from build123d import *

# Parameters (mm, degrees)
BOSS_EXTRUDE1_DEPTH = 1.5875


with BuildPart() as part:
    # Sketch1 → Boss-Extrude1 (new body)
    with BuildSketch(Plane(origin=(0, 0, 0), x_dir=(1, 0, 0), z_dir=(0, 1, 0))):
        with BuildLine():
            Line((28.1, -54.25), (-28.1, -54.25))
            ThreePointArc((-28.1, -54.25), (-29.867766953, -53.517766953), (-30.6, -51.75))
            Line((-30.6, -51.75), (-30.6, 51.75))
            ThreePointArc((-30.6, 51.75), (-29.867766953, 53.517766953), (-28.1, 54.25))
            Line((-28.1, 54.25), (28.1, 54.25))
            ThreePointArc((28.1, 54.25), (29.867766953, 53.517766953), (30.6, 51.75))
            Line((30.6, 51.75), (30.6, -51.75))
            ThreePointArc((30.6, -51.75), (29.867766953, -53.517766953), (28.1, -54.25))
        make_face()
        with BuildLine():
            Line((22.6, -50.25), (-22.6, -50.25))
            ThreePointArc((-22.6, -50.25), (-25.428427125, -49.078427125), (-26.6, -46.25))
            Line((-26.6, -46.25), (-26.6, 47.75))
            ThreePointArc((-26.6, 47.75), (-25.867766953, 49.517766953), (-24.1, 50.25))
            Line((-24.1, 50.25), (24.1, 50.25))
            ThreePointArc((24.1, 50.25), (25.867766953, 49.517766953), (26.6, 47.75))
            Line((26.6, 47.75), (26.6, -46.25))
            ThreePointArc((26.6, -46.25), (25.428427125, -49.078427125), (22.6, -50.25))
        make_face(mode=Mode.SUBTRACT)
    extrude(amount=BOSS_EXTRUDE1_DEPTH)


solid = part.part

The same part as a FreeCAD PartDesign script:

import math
import FreeCAD as App
import Part
import Sketcher

V = App.Vector
Q = App.Units.Quantity

doc = App.newDocument("Part")
body = doc.addObject("PartDesign::Body", "Body")

# Sketch on XZ plane
sketch1 = doc.addObject("Sketcher::SketchObject", "Sketch")
body.addObject(sketch1)
sketch1.AttachmentSupport = (doc.XZ_Plane, [""])
sketch1.MapMode = "FlatFace"
sketch1.addGeometry([
    Part.LineSegment(V(-28.1, 54.25, 0), V(28.1, 54.25, 0)),  # 0
    Part.ArcOfCircle(Part.Circle(V(28.1, 51.75, 0), V(0, 0, 1), 2.5), math.radians(0), math.radians(90)),  # 1
    Part.LineSegment(V(30.6, 51.75, 0), V(30.6, -51.75, 0)),  # 2
    Part.ArcOfCircle(Part.Circle(V(28.1, -51.75, 0), V(0, 0, 1), 2.5), math.radians(-90), math.radians(0)),  # 3
    Part.LineSegment(V(28.1, -54.25, 0), V(-28.1, -54.25, 0)),  # 4
    Part.ArcOfCircle(Part.Circle(V(-28.1, -51.75, 0), V(0, 0, 1), 2.5), math.radians(180), math.radians(270)),  # 5
    Part.LineSegment(V(-30.6, -51.75, 0), V(-30.6, 51.75, 0)),  # 6
    Part.ArcOfCircle(Part.Circle(V(-28.1, 51.75, 0), V(0, 0, 1), 2.5), math.radians(90), math.radians(180)),  # 7
    Part.LineSegment(V(22.6, 50.25, 0), V(-22.6, 50.25, 0)),  # 8
    Part.ArcOfCircle(Part.Circle(V(-22.6, 46.25, 0), V(0, 0, 1), 4), math.radians(90), math.radians(180)),  # 9
    Part.LineSegment(V(-26.6, 46.25, 0), V(-26.6, -47.75, 0)),  # 10
    Part.ArcOfCircle(Part.Circle(V(-24.1, -47.75, 0), V(0, 0, 1), 2.5), math.radians(180), math.radians(270)),  # 11
    Part.LineSegment(V(-24.1, -50.25, 0), V(24.1, -50.25, 0)),  # 12
    Part.ArcOfCircle(Part.Circle(V(24.1, -47.75, 0), V(0, 0, 1), 2.5), math.radians(-90), math.radians(0)),  # 13
    Part.LineSegment(V(26.6, -47.75, 0), V(26.6, 46.25, 0)),  # 14
    Part.ArcOfCircle(Part.Circle(V(22.6, 46.25, 0), V(0, 0, 1), 4), math.radians(0), math.radians(90)),  # 15
], False)
sketch1.addConstraint([
    Sketcher.Constraint("Tangent", 0, 2, 1, 2),
    Sketcher.Constraint("Tangent", 1, 1, 2, 1),
    Sketcher.Constraint("Tangent", 2, 2, 3, 2),
    Sketcher.Constraint("Tangent", 3, 1, 4, 1),
    Sketcher.Constraint("Tangent", 4, 2, 5, 2),
    Sketcher.Constraint("Tangent", 5, 1, 6, 1),
    Sketcher.Constraint("Tangent", 6, 2, 7, 2),
    Sketcher.Constraint("Tangent", 7, 1, 0, 1),
    Sketcher.Constraint("Tangent", 8, 2, 9, 1),
    Sketcher.Constraint("Tangent", 9, 2, 10, 1),
    Sketcher.Constraint("Tangent", 10, 2, 11, 1),
    Sketcher.Constraint("Tangent", 11, 2, 12, 1),
    Sketcher.Constraint("Tangent", 12, 2, 13, 1),
    Sketcher.Constraint("Tangent", 13, 2, 14, 1),
    Sketcher.Constraint("Tangent", 14, 2, 15, 1),
    Sketcher.Constraint("Tangent", 15, 2, 8, 1),
    Sketcher.Constraint("Horizontal", 0),
    Sketcher.Constraint("Vertical", 2),
    Sketcher.Constraint("Horizontal", 4),
    Sketcher.Constraint("Vertical", 6),
    Sketcher.Constraint("Horizontal", 8),
    Sketcher.Constraint("Vertical", 10),
    Sketcher.Constraint("Horizontal", 12),
    Sketcher.Constraint("Vertical", 14),
    Sketcher.Constraint("Equal", 1, 3),
    Sketcher.Constraint("Equal", 3, 5),
    Sketcher.Constraint("Equal", 5, 7),
    Sketcher.Constraint("Equal", 7, 11),
    Sketcher.Constraint("Equal", 11, 13),
    Sketcher.Constraint("Equal", 9, 15),
    Sketcher.Constraint("Symmetric", 1, 3, 5, 3, -1, 1),
    Sketcher.Constraint("Radius", 9, Q("4 mm")),
    Sketcher.Constraint("Radius", 1, Q("2.5 mm")),
    Sketcher.Constraint("DistanceY", 10, 2, 10, 1, Q("94 mm")),
    Sketcher.Constraint("DistanceX", 0, 1, 0, 2, Q("56.2 mm")),
    Sketcher.Constraint("DistanceX", 8, 2, 8, 1, Q("45.2 mm")),
    Sketcher.Constraint("DistanceY", 2, 2, 2, 1, Q("103.5 mm")),
    Sketcher.Constraint("DistanceY", 5, 3, 9, 3, Q("98 mm")),
    Sketcher.Constraint("DistanceX", 5, 3, 11, 3, Q("4 mm")),
])
pad1 = doc.addObject("PartDesign::Pad", "Pad")
body.addObject(pad1)
pad1.Profile = sketch1
pad1.Length = 1.5875
pad1.Reversed = True

doc.recompute()
